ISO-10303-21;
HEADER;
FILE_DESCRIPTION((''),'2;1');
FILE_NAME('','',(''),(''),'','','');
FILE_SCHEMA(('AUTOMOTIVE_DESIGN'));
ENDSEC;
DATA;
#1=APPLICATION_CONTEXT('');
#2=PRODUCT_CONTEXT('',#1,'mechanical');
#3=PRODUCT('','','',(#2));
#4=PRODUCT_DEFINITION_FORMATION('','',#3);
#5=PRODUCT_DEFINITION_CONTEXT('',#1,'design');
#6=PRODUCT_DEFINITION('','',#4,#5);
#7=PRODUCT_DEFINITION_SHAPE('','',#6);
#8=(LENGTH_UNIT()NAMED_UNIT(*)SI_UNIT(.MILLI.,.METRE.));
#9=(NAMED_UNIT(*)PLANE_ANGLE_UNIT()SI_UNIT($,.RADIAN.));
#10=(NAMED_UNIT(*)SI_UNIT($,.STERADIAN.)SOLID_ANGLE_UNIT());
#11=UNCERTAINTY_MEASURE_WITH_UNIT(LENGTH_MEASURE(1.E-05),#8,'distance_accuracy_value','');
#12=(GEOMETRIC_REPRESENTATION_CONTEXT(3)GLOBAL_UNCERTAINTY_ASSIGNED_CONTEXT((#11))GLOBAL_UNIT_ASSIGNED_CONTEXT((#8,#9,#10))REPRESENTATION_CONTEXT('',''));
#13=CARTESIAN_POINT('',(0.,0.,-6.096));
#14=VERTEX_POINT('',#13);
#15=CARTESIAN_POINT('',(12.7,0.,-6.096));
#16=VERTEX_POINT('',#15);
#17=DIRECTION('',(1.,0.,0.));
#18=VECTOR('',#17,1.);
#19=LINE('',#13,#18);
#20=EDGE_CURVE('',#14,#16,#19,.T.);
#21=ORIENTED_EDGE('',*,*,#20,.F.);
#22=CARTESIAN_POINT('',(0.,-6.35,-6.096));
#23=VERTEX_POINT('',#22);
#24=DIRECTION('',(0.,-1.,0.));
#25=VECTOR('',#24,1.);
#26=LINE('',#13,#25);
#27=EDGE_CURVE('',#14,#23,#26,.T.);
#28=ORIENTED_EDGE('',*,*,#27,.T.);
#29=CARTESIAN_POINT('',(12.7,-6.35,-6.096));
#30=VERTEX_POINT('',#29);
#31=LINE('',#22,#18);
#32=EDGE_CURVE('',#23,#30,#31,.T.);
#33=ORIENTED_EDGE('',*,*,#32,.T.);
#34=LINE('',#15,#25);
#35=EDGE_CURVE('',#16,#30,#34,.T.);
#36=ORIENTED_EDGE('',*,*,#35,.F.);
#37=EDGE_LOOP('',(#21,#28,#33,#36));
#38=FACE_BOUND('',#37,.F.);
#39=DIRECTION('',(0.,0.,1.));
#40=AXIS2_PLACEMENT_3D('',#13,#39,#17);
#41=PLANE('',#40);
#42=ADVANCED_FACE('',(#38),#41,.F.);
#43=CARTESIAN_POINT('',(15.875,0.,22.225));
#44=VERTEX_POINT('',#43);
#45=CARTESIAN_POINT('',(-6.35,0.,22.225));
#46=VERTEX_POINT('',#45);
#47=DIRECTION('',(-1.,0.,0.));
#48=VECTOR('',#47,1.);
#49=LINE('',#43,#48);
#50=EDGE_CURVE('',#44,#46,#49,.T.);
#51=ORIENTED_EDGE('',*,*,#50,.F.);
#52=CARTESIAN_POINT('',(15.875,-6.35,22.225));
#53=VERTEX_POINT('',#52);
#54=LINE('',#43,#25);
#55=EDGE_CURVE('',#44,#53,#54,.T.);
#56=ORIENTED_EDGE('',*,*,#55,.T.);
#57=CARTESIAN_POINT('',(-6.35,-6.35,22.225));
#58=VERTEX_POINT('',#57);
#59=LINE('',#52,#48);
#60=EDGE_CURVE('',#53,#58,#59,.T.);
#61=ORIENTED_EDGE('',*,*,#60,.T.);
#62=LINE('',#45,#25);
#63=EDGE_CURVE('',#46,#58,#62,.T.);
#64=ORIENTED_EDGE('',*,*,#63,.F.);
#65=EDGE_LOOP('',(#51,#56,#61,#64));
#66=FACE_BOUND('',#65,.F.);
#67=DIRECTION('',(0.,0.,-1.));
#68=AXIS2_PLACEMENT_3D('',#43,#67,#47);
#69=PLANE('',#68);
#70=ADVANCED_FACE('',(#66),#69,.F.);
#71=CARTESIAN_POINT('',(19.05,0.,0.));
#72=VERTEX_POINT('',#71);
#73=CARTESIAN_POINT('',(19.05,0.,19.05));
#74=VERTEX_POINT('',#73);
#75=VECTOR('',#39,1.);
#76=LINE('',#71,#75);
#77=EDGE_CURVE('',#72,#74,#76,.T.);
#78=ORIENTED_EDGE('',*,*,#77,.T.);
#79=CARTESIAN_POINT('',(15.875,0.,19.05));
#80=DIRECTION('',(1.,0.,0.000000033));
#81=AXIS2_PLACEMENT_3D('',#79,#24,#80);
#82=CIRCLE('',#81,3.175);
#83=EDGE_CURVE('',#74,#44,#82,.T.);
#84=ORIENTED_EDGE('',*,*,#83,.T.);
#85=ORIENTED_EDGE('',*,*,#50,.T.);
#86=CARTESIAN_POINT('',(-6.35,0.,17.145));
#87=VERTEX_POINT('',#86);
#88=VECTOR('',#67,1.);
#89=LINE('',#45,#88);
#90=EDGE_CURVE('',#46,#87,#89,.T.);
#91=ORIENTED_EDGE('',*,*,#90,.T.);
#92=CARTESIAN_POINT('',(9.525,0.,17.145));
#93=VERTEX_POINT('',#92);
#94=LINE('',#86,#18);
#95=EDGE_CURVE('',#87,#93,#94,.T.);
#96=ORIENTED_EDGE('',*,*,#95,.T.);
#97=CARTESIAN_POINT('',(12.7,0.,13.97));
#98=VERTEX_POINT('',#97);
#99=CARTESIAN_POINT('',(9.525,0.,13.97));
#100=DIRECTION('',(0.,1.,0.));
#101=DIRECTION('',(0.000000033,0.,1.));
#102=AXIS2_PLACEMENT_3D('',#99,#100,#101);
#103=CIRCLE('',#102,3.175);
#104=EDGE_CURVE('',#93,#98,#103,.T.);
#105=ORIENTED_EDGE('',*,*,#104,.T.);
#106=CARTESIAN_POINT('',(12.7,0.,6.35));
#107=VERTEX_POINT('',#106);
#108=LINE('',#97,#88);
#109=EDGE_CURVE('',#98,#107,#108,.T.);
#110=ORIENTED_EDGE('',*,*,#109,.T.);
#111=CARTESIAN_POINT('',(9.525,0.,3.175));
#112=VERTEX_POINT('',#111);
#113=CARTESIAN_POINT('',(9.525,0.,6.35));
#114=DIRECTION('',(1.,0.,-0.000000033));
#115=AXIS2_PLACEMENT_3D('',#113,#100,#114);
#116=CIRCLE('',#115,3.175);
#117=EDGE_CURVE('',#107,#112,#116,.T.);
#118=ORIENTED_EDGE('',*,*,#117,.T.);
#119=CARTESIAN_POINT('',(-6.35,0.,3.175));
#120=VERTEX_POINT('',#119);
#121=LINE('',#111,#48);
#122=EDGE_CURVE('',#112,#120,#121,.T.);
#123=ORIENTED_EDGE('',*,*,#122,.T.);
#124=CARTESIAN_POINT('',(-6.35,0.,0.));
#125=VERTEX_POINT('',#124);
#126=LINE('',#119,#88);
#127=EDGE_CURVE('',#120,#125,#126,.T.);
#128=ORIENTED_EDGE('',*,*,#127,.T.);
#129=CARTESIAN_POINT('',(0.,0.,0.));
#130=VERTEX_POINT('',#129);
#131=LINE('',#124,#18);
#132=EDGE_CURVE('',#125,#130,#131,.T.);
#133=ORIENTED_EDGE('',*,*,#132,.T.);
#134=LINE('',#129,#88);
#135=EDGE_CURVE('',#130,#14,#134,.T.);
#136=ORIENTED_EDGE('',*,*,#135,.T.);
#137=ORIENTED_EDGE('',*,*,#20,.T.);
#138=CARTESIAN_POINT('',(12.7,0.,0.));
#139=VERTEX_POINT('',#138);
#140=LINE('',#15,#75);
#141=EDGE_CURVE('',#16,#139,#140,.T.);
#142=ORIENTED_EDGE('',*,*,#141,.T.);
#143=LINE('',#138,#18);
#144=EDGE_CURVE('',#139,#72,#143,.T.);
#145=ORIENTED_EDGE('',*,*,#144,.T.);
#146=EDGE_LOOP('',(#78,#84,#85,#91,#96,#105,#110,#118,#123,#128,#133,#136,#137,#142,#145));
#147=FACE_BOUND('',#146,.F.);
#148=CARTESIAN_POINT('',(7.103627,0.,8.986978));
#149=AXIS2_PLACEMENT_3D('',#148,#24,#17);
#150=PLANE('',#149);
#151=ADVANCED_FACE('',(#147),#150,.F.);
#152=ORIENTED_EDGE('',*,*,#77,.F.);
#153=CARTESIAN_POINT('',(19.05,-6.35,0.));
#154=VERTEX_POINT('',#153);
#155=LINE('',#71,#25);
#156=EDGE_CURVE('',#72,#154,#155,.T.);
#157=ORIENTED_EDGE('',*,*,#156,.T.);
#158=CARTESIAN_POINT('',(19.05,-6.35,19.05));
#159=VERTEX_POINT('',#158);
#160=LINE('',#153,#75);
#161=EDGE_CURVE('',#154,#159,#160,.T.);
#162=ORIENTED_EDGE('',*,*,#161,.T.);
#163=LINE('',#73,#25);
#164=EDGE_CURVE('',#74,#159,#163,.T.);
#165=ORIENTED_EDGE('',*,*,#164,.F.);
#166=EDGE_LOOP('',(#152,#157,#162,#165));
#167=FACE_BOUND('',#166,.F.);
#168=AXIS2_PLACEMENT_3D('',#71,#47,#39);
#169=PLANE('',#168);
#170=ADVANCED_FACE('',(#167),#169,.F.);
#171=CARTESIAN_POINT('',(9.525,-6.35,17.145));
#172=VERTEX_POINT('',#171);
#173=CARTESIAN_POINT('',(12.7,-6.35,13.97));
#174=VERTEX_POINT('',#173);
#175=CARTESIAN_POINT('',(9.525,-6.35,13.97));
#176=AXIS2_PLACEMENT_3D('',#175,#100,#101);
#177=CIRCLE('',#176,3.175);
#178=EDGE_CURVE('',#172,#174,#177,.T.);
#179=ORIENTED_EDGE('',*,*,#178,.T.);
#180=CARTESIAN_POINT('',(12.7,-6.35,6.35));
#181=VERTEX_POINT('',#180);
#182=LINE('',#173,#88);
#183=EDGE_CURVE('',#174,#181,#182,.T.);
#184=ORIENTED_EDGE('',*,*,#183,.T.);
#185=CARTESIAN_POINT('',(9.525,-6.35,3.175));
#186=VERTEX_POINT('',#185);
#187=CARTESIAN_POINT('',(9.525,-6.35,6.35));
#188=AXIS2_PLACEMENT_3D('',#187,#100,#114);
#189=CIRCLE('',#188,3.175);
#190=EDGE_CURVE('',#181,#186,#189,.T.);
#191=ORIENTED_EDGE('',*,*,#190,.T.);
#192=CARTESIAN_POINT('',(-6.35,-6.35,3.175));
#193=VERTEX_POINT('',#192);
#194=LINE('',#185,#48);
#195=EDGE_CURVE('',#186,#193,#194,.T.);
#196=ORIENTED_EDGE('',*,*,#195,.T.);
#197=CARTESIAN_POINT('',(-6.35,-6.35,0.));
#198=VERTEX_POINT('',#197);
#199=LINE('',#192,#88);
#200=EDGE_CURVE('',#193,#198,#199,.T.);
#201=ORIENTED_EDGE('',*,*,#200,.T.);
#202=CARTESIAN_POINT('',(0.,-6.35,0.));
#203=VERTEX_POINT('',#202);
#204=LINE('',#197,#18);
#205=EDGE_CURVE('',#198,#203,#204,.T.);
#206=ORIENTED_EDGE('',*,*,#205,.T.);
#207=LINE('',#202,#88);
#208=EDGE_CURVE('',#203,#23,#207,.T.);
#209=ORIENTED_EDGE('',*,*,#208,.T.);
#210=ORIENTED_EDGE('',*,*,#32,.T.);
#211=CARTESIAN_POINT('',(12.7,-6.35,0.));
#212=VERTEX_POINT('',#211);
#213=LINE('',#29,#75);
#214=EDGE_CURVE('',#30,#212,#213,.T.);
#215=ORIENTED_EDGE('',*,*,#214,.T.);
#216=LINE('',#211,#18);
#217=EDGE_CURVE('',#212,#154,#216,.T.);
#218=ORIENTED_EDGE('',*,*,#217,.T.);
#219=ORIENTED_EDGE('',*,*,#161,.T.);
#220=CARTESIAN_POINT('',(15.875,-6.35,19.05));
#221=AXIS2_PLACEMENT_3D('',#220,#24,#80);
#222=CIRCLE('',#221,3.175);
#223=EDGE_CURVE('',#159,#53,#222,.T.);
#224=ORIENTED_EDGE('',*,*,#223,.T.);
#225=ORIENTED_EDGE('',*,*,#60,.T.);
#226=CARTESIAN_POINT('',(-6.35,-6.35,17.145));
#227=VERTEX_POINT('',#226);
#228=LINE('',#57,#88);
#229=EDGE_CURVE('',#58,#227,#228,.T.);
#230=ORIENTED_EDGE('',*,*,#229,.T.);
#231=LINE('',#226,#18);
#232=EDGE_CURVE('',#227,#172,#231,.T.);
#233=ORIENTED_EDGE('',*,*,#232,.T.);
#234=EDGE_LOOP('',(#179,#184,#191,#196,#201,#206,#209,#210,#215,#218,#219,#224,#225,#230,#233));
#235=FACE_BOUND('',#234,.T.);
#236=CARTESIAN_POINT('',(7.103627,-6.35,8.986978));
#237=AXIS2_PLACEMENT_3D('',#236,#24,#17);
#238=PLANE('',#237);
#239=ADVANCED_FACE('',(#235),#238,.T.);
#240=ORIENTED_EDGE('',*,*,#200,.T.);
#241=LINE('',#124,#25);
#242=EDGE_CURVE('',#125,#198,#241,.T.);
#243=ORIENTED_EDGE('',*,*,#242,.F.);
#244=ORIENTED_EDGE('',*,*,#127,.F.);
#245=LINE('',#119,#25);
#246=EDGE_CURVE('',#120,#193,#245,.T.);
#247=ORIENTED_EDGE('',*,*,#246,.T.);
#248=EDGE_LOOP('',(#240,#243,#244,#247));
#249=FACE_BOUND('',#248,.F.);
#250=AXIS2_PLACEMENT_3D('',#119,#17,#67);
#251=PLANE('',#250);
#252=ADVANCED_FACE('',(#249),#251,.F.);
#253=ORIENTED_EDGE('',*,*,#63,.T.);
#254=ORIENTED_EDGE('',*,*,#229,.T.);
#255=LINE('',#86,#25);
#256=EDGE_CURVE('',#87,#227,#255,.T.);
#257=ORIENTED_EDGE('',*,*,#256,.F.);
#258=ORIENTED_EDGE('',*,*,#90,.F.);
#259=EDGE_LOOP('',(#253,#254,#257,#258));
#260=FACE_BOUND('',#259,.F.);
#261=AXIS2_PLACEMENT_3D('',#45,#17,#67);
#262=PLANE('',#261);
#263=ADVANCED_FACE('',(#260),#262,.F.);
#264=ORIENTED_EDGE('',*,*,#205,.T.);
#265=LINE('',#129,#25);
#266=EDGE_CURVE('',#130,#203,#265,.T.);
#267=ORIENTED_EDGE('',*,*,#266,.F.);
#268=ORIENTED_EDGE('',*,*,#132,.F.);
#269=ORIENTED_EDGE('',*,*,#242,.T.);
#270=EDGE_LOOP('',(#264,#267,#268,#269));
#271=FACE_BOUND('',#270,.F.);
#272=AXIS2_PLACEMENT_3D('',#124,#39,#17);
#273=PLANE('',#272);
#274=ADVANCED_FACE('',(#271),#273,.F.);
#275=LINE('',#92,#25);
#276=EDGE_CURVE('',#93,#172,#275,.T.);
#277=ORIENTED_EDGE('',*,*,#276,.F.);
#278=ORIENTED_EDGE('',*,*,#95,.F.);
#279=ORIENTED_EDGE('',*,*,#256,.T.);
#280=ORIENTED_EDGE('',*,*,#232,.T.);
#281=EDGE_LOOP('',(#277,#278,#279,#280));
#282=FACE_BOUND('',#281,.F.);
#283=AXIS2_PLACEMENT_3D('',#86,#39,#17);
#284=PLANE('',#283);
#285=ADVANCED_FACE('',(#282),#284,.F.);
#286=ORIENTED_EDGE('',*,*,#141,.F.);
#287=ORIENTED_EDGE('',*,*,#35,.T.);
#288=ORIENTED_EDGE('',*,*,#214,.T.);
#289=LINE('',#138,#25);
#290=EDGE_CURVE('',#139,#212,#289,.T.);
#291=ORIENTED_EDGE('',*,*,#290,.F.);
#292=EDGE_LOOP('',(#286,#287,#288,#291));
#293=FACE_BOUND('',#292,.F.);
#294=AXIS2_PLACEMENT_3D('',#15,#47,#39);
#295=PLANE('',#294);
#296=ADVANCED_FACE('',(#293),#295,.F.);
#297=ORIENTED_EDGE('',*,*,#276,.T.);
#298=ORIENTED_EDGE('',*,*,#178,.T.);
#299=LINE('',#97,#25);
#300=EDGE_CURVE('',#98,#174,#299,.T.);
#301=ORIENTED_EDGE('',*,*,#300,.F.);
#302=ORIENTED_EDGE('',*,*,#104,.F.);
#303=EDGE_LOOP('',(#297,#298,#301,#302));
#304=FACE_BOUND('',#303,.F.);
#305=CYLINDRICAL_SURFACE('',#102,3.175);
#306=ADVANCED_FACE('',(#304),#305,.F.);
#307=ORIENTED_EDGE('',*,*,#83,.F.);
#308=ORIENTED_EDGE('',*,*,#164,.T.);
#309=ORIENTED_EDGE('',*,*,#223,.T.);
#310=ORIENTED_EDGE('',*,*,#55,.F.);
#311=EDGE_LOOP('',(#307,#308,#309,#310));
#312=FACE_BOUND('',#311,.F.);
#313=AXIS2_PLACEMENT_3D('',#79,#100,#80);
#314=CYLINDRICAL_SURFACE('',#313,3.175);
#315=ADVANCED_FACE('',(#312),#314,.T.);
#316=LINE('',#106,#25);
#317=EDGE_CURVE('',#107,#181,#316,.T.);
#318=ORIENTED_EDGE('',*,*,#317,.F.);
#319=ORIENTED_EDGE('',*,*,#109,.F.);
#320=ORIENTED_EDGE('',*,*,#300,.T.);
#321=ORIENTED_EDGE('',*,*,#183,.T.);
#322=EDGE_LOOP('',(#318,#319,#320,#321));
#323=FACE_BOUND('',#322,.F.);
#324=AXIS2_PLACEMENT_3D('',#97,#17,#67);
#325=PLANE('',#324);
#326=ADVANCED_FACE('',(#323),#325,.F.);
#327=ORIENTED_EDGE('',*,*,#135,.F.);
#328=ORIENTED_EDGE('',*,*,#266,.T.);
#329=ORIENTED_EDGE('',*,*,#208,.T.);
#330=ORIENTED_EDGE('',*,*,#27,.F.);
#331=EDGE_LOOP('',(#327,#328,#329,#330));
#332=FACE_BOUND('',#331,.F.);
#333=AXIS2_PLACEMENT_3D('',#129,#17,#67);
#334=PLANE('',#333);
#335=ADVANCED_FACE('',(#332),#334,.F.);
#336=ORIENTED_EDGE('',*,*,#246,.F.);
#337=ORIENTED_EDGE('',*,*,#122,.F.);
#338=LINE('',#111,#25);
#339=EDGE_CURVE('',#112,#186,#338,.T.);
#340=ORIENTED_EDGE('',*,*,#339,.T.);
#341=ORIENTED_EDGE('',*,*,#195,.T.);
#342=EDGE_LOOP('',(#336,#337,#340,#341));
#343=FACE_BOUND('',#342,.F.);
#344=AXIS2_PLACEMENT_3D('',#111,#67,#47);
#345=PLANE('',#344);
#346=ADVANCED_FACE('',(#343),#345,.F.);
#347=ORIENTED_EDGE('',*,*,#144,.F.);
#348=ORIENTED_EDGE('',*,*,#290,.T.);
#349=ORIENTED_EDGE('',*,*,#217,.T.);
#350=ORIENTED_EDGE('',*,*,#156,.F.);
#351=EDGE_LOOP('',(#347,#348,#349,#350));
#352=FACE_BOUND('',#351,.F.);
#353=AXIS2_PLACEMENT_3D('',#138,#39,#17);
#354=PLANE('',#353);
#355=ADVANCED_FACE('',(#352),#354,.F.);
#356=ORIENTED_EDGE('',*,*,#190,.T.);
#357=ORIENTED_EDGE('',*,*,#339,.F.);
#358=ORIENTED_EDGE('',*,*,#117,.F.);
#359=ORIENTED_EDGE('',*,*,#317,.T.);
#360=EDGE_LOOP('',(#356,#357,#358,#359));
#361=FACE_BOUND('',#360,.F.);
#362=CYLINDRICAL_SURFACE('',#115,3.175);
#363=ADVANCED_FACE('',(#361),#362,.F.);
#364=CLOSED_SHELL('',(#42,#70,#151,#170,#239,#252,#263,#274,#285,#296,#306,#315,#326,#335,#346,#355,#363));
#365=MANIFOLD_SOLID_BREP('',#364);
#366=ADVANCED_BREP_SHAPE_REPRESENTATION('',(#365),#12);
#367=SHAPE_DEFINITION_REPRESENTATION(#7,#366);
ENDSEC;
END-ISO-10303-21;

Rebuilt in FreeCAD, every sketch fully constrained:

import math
import FreeCAD as App
import Part
import Sketcher
from FreeCAD import Vector
Q = App.Units.Quantity

doc = App.newDocument("Part")
body = doc.addObject("PartDesign::Body", "Body")

# Sketch on XZ plane
sketch1 = doc.addObject("Sketcher::SketchObject", "Sketch")
body.addObject(sketch1)
sketch1.AttachmentSupport = (doc.XZ_Plane, [""])
sketch1.MapMode = "FlatFace"
sketch1.addGeometry([
    Part.LineSegment(Vector(0, 0, 0), Vector(0, -6.1, 0)),  # 0
    Part.LineSegment(Vector(0, -6.1, 0), Vector(12.7, -6.1, 0)),  # 1
    Part.LineSegment(Vector(12.7, -6.1, 0), Vector(12.7, 0, 0)),  # 2
    Part.LineSegment(Vector(12.7, 0, 0), Vector(19.1, 0, 0)),  # 3
    Part.LineSegment(Vector(19.1, 0, 0), Vector(19.1, 19.1, 0)),  # 4
    Part.ArcOfCircle(Part.Circle(Vector(15.9, 19, 0), Vector(0, 0, 1), 3.2), math.radians(0), math.radians(90)),  # 5
    Part.LineSegment(Vector(15.9, 22.2, 0), Vector(-6.3, 22.2, 0)),  # 6
    Part.LineSegment(Vector(-6.3, 22.2, 0), Vector(-6.3, 17.1, 0)),  # 7
    Part.LineSegment(Vector(-6.3, 17.1, 0), Vector(9.5, 17.1, 0)),  # 8
    Part.ArcOfCircle(Part.Circle(Vector(9.5, 14, 0), Vector(0, 0, 1), 3.2), math.radians(0), math.radians(90)),  # 9
    Part.LineSegment(Vector(12.7, 14, 0), Vector(12.7, 6.3, 0)),  # 10
    Part.ArcOfCircle(Part.Circle(Vector(9.5, 6.4, 0), Vector(0, 0, 1), 3.2), math.radians(-90), math.radians(0)),  # 11
    Part.LineSegment(Vector(9.5, 3.2, 0), Vector(-6.3, 3.2, 0)),  # 12
    Part.LineSegment(Vector(-6.3, 3.2, 0), Vector(-6.3, 0, 0)),  # 13
    Part.LineSegment(Vector(-6.3, 0, 0), Vector(0, 0, 0)),  # 14
], False)
sketch1.addConstraint([
    Sketcher.Constraint("Coincident", 0, 2, 1, 1),
    Sketcher.Constraint("Coincident", 1, 2, 2, 1),
    Sketcher.Constraint("Coincident", 2, 2, 3, 1),
    Sketcher.Constraint("Coincident", 3, 2, 4, 1),
    Sketcher.Constraint("Tangent", 4, 2, 5, 1),
    Sketcher.Constraint("Tangent", 5, 2, 6, 1),
    Sketcher.Constraint("Coincident", 6, 2, 7, 1),
    Sketcher.Constraint("Coincident", 7, 2, 8, 1),
    Sketcher.Constraint("Tangent", 8, 2, 9, 2),
    Sketcher.Constraint("Tangent", 9, 1, 10, 1),
    Sketcher.Constraint("Tangent", 10, 2, 11, 2),
    Sketcher.Constraint("Tangent", 11, 1, 12, 1),
    Sketcher.Constraint("Coincident", 12, 2, 13, 1),
    Sketcher.Constraint("Coincident", 13, 2, 14, 1),
    Sketcher.Constraint("Coincident", 14, 2, 0, 1),
    Sketcher.Constraint("Vertical", 0),
    Sketcher.Constraint("Horizontal", 1),
    Sketcher.Constraint("Vertical", 2),
    Sketcher.Constraint("Horizontal", 3),
    Sketcher.Constraint("Vertical", 4),
    Sketcher.Constraint("Horizontal", 6),
    Sketcher.Constraint("Vertical", 7),
    Sketcher.Constraint("Horizontal", 8),
    Sketcher.Constraint("Vertical", 10),
    Sketcher.Constraint("Horizontal", 12),
    Sketcher.Constraint("Vertical", 13),
    Sketcher.Constraint("Horizontal", 14),
    Sketcher.Constraint("Coincident", 14, 2, -1, 1),
    Sketcher.Constraint("Equal", 5, 9),
    Sketcher.Constraint("Equal", 9, 11),
    Sketcher.Constraint("PointOnObject", 2, 2, -1),
    Sketcher.Constraint("Vertical", 2, 2, 9, 1),
    Sketcher.Constraint("Vertical", 7, 2, 12, 2),
    Sketcher.Constraint("Equal", 3, 14),
    Sketcher.Constraint("DistanceX", 1, 1, 1, 2, Q("0.5 in")),
    Sketcher.Constraint("DistanceY", 7, 2, 7, 1, Q("0.2 in")),
    Sketcher.Constraint("DistanceY", 10, 2, 10, 1, Q("0.3 in")),
    Sketcher.Constraint("Radius", 5, Q("0.125 in")),
    Sketcher.Constraint("DistanceX", 6, 2, 4, 2, Q("1 in")),
    Sketcher.Constraint("DistanceY", 0, 2, 0, 1, Q("0.24 in")),
    Sketcher.Constraint("DistanceY", 4, 1, 4, 2, Q("0.75 in")),
])
pad1 = doc.addObject("PartDesign::Pad", "Pad")
body.addObject(pad1)
pad1.Profile = sketch1
pad1.Length = Q("0.25 in")

doc.recompute()
